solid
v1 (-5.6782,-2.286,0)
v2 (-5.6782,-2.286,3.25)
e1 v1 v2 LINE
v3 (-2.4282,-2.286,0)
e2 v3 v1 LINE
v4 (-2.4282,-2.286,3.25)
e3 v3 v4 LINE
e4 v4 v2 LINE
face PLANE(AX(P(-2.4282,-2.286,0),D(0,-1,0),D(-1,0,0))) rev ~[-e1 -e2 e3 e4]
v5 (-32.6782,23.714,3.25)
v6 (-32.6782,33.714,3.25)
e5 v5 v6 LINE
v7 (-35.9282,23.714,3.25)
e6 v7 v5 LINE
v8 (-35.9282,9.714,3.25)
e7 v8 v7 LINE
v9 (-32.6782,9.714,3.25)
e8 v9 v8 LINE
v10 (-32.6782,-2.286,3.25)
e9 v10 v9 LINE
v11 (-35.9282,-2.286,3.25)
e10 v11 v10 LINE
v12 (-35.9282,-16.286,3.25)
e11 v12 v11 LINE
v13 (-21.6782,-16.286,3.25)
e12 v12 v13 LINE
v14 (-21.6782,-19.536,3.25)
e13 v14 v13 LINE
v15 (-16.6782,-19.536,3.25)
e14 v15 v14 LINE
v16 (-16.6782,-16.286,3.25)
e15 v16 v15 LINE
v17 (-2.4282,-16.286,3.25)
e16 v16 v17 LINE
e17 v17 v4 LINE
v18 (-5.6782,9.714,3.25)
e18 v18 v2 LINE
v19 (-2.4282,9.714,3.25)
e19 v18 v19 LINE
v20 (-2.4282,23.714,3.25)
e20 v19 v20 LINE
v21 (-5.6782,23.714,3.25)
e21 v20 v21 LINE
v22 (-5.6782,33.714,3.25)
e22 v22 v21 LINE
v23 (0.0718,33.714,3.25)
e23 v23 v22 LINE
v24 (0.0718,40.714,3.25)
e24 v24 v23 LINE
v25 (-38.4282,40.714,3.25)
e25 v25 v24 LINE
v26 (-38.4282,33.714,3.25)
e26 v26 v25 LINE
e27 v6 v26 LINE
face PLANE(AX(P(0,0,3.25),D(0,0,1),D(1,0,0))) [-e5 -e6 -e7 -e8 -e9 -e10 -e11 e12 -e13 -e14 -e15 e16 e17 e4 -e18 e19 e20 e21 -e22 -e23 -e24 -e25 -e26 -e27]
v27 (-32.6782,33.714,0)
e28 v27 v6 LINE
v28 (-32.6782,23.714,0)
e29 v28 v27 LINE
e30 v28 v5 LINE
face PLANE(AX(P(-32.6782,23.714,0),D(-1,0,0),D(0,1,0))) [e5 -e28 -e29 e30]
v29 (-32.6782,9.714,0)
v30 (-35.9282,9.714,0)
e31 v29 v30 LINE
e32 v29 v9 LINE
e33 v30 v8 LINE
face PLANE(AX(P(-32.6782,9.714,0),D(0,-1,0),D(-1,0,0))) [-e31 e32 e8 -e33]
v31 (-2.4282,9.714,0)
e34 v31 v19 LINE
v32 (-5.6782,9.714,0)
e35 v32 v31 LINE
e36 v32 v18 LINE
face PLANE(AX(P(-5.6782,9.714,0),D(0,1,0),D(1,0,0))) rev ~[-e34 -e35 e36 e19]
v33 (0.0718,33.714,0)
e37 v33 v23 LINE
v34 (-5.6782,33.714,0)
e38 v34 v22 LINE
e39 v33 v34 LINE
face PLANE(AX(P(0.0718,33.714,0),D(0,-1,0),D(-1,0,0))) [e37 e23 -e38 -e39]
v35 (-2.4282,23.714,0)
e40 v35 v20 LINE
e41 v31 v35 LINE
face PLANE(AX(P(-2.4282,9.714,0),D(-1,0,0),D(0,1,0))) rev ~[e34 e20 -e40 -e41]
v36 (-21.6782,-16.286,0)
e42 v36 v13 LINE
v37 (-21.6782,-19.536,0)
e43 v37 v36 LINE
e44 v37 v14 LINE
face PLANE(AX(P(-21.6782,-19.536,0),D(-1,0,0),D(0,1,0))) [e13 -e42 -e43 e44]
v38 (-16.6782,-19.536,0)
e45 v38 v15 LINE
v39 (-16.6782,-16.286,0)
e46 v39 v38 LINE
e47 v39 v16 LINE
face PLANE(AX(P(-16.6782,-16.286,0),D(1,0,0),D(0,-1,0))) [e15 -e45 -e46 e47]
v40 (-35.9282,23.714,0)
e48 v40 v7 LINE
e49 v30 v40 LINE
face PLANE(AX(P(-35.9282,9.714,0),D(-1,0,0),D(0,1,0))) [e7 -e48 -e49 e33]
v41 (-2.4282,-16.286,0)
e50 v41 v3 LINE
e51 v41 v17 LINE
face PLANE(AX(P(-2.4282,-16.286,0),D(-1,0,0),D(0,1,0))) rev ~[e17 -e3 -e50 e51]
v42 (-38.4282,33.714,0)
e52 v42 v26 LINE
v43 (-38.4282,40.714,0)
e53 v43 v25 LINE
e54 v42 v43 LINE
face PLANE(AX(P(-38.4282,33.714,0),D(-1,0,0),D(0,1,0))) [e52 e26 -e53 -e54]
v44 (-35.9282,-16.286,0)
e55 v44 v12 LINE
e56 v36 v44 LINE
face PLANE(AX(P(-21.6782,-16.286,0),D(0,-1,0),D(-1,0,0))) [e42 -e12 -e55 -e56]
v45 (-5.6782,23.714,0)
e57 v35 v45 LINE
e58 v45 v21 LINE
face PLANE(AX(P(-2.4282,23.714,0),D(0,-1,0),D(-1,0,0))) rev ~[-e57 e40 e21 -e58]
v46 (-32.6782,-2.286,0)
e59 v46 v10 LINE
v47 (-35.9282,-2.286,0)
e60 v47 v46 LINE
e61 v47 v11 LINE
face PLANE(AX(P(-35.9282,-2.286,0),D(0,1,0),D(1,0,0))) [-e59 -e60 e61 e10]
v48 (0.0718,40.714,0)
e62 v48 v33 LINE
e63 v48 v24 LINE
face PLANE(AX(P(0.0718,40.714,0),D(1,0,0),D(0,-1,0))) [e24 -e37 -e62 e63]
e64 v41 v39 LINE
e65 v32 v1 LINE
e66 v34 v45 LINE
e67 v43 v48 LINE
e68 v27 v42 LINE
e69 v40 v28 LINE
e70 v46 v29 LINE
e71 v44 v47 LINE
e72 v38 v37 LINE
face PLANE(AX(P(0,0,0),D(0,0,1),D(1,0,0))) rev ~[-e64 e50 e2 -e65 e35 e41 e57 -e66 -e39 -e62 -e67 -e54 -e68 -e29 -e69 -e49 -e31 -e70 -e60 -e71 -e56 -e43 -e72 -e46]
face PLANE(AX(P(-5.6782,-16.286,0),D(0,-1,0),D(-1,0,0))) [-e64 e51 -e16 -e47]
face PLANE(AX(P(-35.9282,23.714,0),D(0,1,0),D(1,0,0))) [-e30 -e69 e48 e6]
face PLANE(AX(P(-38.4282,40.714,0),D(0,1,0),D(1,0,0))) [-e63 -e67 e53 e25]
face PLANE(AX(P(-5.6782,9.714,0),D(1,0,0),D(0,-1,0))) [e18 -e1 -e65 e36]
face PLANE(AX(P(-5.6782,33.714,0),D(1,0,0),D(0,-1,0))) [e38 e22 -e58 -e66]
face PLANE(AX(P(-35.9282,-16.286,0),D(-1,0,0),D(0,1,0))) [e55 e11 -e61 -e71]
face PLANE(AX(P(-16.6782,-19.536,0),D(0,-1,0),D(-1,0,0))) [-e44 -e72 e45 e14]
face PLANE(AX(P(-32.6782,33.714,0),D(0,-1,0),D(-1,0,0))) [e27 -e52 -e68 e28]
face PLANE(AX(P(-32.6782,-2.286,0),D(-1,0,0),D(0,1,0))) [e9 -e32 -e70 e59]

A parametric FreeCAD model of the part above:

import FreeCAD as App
import Part
import Sketcher
from FreeCAD import Vector
Q = App.Units.Quantity

doc = App.newDocument("Part")
body = doc.addObject("PartDesign::Body", "Body")

sketch1 = doc.addObject("Sketcher::SketchObject", "Sketch")
body.addObject(sketch1)
sketch1.AttachmentSupport = (doc.XY_Plane, [""])
sketch1.MapMode = "FlatFace"
sketch1.addGeometry(Part.LineSegment(Vector(0.1, 40.7, 0), Vector(-38.4, 40.7, 0)), False)
sketch1.addGeometry(Part.LineSegment(Vector(-38.4, 40.7, 0), Vector(-38.4, 33.7, 0)), False)
sketch1.addGeometry(Part.LineSegment(Vector(-38.4, 33.7, 0), Vector(-32.7, 33.7, 0)), False)
sketch1.addGeometry(Part.LineSegment(Vector(-32.7, 33.7, 0), Vector(-32.7, 23.7, 0)), False)
sketch1.addGeometry(Part.LineSegment(Vector(-32.7, 23.7, 0), Vector(-35.9, 23.7, 0)), False)
sketch1.addGeometry(Part.LineSegment(Vector(-35.9, 23.7, 0), Vector(-35.9, 9.7, 0)), False)
sketch1.addGeometry(Part.LineSegment(Vector(-35.9, 9.7, 0), Vector(-32.7, 9.7, 0)), False)
sketch1.addGeometry(Part.LineSegment(Vector(-32.7, 9.7, 0), Vector(-32.7, -2.3, 0)), False)
sketch1.addGeometry(Part.LineSegment(Vector(-32.7, -2.3, 0), Vector(-35.9, -2.3, 0)), False)
sketch1.addGeometry(Part.LineSegment(Vector(-35.9, -2.3, 0), Vector(-35.9, -16.3, 0)), False)
sketch1.addGeometry(Part.LineSegment(Vector(-35.9, -16.3, 0), Vector(-21.7, -16.3, 0)), False)
sketch1.addGeometry(Part.LineSegment(Vector(-21.7, -16.3, 0), Vector(-21.7, -19.5, 0)), False)
sketch1.addGeometry(Part.LineSegment(Vector(-21.7, -19.5, 0), Vector(-16.7, -19.5, 0)), False)
sketch1.addGeometry(Part.LineSegment(Vector(-16.7, -19.5, 0), Vector(-16.7, -16.3, 0)), False)
sketch1.addGeometry(Part.LineSegment(Vector(-16.7, -16.3, 0), Vector(-2.4, -16.3, 0)), False)
sketch1.addGeometry(Part.LineSegment(Vector(-2.4, -16.3, 0), Vector(-2.4, -2.3, 0)), False)
sketch1.addGeometry(Part.LineSegment(Vector(-2.4, -2.3, 0), Vector(-5.7, -2.3, 0)), False)
sketch1.addGeometry(Part.LineSegment(Vector(-5.7, -2.3, 0), Vector(-5.7, 9.7, 0)), False)
sketch1.addGeometry(Part.LineSegment(Vector(-5.7, 9.7, 0), Vector(-2.4, 9.7, 0)), False)
sketch1.addGeometry(Part.LineSegment(Vector(-2.4, 9.7, 0), Vector(-2.4, 23.7, 0)), False)
sketch1.addGeometry(Part.LineSegment(Vector(-2.4, 23.7, 0), Vector(-5.7, 23.7, 0)), False)
sketch1.addGeometry(Part.LineSegment(Vector(-5.7, 23.7, 0), Vector(-5.7, 33.7, 0)), False)
sketch1.addGeometry(Part.LineSegment(Vector(-5.7, 33.7, 0), Vector(0.1, 33.7, 0)), False)
sketch1.addGeometry(Part.LineSegment(Vector(0.1, 33.7, 0), Vector(0.1, 40.7, 0)), False)
sketch1.addConstraint(Sketcher.Constraint("Coincident", 0, 2, 1, 1))
sketch1.addConstraint(Sketcher.Constraint("Coincident", 1, 2, 2, 1))
sketch1.addConstraint(Sketcher.Constraint("Coincident", 2, 2, 3, 1))
sketch1.addConstraint(Sketcher.Constraint("Coincident", 3, 2, 4, 1))
sketch1.addConstraint(Sketcher.Constraint("Coincident", 4, 2, 5, 1))
sketch1.addConstraint(Sketcher.Constraint("Coincident", 5, 2, 6, 1))
sketch1.addConstraint(Sketcher.Constraint("Coincident", 6, 2, 7, 1))
sketch1.addConstraint(Sketcher.Constraint("Coincident", 7, 2, 8, 1))
sketch1.addConstraint(Sketcher.Constraint("Coincident", 8, 2, 9, 1))
sketch1.addConstraint(Sketcher.Constraint("Coincident", 9, 2, 10, 1))
sketch1.addConstraint(Sketcher.Constraint("Coincident", 10, 2, 11, 1))
sketch1.addConstraint(Sketcher.Constraint("Coincident", 11, 2, 12, 1))
sketch1.addConstraint(Sketcher.Constraint("Coincident", 12, 2, 13, 1))
sketch1.addConstraint(Sketcher.Constraint("Coincident", 13, 2, 14, 1))
sketch1.addConstraint(Sketcher.Constraint("Coincident", 14, 2, 15, 1))
sketch1.addConstraint(Sketcher.Constraint("Coincident", 15, 2, 16, 1))
sketch1.addConstraint(Sketcher.Constraint("Coincident", 16, 2, 17, 1))
sketch1.addConstraint(Sketcher.Constraint("Coincident", 17, 2, 18, 1))
sketch1.addConstraint(Sketcher.Constraint("Coincident", 18, 2, 19, 1))
sketch1.addConstraint(Sketcher.Constraint("Coincident", 19, 2, 20, 1))
sketch1.addConstraint(Sketcher.Constraint("Coincident", 20, 2, 21, 1))
sketch1.addConstraint(Sketcher.Constraint("Coincident", 21, 2, 22, 1))
sketch1.addConstraint(Sketcher.Constraint("Coincident", 22, 2, 23, 1))
sketch1.addConstraint(Sketcher.Constraint("Coincident", 23, 2, 0, 1))
sketch1.addConstraint(Sketcher.Constraint("Horizontal", 0))
sketch1.addConstraint(Sketcher.Constraint("Vertical", 1))
sketch1.addConstraint(Sketcher.Constraint("Horizontal", 2))
sketch1.addConstraint(Sketcher.Constraint("Vertical", 3))
sketch1.addConstraint(Sketcher.Constraint("Horizontal", 4))
sketch1.addConstraint(Sketcher.Constraint("Vertical", 5))
sketch1.addConstraint(Sketcher.Constraint("Horizontal", 6))
sketch1.addConstraint(Sketcher.Constraint("Vertical", 7))
sketch1.addConstraint(Sketcher.Constraint("Horizontal", 8))
sketch1.addConstraint(Sketcher.Constraint("Vertical", 9))
sketch1.addConstraint(Sketcher.Constraint("Horizontal", 10))
sketch1.addConstraint(Sketcher.Constraint("Vertical", 11))
sketch1.addConstraint(Sketcher.Constraint("Horizontal", 12))
sketch1.addConstraint(Sketcher.Constraint("Vertical", 13))
sketch1.addConstraint(Sketcher.Constraint("Horizontal", 14))
sketch1.addConstraint(Sketcher.Constraint("Vertical", 15))
sketch1.addConstraint(Sketcher.Constraint("Horizontal", 16))
sketch1.addConstraint(Sketcher.Constraint("Vertical", 17))
sketch1.addConstraint(Sketcher.Constraint("Horizontal", 18))
sketch1.addConstraint(Sketcher.Constraint("Vertical", 19))
sketch1.addConstraint(Sketcher.Constraint("Horizontal", 20))
sketch1.addConstraint(Sketcher.Constraint("Vertical", 21))
sketch1.addConstraint(Sketcher.Constraint("Horizontal", 22))
sketch1.addConstraint(Sketcher.Constraint("Vertical", 23))
sketch1.addConstraint(Sketcher.Constraint("Horizontal", 10, 2, 13, 2))
sketch1.addConstraint(Sketcher.Constraint("Horizontal", 8, 2, 15, 2))
sketch1.addConstraint(Sketcher.Constraint("Horizontal", 6, 2, 17, 2))
sketch1.addConstraint(Sketcher.Constraint("Horizontal", 4, 2, 19, 2))
sketch1.addConstraint(Sketcher.Constraint("Horizontal", 2, 2, 21, 2))
sketch1.addConstraint(Sketcher.Constraint("Vertical", 3, 2, 6, 2))
sketch1.addConstraint(Sketcher.Constraint("Vertical", 5, 2, 8, 2))
sketch1.addConstraint(Sketcher.Constraint("Vertical", 15, 2, 18, 2))
sketch1.addConstraint(Sketcher.Constraint("Vertical", 17, 2, 20, 2))
sketch1.addConstraint(Sketcher.Constraint("Equal", 10, 14))
sketch1.addConstraint(Sketcher.Constraint("Equal", 8, 16))
sketch1.addConstraint(Sketcher.Constraint("Equal", 2, 22))
sketch1.addConstraint(Sketcher.Constraint("Equal", 5, 9))
sketch1.addConstraint(Sketcher.Constraint("Equal", 20, 11))
sketch1.addConstraint(Sketcher.Constraint("DistanceX", 12, 1, 12, 2, Q("5 mm")))
sketch1.addConstraint(Sketcher.Constraint("DistanceY", 1, 2, 1, 1, Q("7 mm")))
sketch1.addConstraint(Sketcher.Constraint("DistanceY", 3, 2, 3, 1, Q("10 mm")))
sketch1.addConstraint(Sketcher.Constraint("DistanceY", 5, 2, 5, 1, Q("14 mm")))
sketch1.addConstraint(Sketcher.Constraint("DistanceX", 0, 2, 0, 1, Q("38.5 mm")))
sketch1.addConstraint(Sketcher.Constraint("DistanceX", 6, 2, 17, 2, Q("27 mm")))
sketch1.addConstraint(Sketcher.Constraint("DistanceX", 4, 2, 4, 1, Q("3.25 mm")))
sketch1.addConstraint(Sketcher.Constraint("DistanceY", 7, 2, 7, 1, Q("12 mm")))
sketch1.addConstraint(Sketcher.Constraint("DistanceY", -1, 1, 0, 2, Q("40.714 mm")))
sketch1.addConstraint(Sketcher.Constraint("DistanceX", 0, 2, -1, 1, Q("38.4282 mm")))
pad1 = doc.addObject("PartDesign::Pad", "Pad")
body.addObject(pad1)
pad1.Profile = sketch1
pad1.Length = 3.25

doc.recompute()
